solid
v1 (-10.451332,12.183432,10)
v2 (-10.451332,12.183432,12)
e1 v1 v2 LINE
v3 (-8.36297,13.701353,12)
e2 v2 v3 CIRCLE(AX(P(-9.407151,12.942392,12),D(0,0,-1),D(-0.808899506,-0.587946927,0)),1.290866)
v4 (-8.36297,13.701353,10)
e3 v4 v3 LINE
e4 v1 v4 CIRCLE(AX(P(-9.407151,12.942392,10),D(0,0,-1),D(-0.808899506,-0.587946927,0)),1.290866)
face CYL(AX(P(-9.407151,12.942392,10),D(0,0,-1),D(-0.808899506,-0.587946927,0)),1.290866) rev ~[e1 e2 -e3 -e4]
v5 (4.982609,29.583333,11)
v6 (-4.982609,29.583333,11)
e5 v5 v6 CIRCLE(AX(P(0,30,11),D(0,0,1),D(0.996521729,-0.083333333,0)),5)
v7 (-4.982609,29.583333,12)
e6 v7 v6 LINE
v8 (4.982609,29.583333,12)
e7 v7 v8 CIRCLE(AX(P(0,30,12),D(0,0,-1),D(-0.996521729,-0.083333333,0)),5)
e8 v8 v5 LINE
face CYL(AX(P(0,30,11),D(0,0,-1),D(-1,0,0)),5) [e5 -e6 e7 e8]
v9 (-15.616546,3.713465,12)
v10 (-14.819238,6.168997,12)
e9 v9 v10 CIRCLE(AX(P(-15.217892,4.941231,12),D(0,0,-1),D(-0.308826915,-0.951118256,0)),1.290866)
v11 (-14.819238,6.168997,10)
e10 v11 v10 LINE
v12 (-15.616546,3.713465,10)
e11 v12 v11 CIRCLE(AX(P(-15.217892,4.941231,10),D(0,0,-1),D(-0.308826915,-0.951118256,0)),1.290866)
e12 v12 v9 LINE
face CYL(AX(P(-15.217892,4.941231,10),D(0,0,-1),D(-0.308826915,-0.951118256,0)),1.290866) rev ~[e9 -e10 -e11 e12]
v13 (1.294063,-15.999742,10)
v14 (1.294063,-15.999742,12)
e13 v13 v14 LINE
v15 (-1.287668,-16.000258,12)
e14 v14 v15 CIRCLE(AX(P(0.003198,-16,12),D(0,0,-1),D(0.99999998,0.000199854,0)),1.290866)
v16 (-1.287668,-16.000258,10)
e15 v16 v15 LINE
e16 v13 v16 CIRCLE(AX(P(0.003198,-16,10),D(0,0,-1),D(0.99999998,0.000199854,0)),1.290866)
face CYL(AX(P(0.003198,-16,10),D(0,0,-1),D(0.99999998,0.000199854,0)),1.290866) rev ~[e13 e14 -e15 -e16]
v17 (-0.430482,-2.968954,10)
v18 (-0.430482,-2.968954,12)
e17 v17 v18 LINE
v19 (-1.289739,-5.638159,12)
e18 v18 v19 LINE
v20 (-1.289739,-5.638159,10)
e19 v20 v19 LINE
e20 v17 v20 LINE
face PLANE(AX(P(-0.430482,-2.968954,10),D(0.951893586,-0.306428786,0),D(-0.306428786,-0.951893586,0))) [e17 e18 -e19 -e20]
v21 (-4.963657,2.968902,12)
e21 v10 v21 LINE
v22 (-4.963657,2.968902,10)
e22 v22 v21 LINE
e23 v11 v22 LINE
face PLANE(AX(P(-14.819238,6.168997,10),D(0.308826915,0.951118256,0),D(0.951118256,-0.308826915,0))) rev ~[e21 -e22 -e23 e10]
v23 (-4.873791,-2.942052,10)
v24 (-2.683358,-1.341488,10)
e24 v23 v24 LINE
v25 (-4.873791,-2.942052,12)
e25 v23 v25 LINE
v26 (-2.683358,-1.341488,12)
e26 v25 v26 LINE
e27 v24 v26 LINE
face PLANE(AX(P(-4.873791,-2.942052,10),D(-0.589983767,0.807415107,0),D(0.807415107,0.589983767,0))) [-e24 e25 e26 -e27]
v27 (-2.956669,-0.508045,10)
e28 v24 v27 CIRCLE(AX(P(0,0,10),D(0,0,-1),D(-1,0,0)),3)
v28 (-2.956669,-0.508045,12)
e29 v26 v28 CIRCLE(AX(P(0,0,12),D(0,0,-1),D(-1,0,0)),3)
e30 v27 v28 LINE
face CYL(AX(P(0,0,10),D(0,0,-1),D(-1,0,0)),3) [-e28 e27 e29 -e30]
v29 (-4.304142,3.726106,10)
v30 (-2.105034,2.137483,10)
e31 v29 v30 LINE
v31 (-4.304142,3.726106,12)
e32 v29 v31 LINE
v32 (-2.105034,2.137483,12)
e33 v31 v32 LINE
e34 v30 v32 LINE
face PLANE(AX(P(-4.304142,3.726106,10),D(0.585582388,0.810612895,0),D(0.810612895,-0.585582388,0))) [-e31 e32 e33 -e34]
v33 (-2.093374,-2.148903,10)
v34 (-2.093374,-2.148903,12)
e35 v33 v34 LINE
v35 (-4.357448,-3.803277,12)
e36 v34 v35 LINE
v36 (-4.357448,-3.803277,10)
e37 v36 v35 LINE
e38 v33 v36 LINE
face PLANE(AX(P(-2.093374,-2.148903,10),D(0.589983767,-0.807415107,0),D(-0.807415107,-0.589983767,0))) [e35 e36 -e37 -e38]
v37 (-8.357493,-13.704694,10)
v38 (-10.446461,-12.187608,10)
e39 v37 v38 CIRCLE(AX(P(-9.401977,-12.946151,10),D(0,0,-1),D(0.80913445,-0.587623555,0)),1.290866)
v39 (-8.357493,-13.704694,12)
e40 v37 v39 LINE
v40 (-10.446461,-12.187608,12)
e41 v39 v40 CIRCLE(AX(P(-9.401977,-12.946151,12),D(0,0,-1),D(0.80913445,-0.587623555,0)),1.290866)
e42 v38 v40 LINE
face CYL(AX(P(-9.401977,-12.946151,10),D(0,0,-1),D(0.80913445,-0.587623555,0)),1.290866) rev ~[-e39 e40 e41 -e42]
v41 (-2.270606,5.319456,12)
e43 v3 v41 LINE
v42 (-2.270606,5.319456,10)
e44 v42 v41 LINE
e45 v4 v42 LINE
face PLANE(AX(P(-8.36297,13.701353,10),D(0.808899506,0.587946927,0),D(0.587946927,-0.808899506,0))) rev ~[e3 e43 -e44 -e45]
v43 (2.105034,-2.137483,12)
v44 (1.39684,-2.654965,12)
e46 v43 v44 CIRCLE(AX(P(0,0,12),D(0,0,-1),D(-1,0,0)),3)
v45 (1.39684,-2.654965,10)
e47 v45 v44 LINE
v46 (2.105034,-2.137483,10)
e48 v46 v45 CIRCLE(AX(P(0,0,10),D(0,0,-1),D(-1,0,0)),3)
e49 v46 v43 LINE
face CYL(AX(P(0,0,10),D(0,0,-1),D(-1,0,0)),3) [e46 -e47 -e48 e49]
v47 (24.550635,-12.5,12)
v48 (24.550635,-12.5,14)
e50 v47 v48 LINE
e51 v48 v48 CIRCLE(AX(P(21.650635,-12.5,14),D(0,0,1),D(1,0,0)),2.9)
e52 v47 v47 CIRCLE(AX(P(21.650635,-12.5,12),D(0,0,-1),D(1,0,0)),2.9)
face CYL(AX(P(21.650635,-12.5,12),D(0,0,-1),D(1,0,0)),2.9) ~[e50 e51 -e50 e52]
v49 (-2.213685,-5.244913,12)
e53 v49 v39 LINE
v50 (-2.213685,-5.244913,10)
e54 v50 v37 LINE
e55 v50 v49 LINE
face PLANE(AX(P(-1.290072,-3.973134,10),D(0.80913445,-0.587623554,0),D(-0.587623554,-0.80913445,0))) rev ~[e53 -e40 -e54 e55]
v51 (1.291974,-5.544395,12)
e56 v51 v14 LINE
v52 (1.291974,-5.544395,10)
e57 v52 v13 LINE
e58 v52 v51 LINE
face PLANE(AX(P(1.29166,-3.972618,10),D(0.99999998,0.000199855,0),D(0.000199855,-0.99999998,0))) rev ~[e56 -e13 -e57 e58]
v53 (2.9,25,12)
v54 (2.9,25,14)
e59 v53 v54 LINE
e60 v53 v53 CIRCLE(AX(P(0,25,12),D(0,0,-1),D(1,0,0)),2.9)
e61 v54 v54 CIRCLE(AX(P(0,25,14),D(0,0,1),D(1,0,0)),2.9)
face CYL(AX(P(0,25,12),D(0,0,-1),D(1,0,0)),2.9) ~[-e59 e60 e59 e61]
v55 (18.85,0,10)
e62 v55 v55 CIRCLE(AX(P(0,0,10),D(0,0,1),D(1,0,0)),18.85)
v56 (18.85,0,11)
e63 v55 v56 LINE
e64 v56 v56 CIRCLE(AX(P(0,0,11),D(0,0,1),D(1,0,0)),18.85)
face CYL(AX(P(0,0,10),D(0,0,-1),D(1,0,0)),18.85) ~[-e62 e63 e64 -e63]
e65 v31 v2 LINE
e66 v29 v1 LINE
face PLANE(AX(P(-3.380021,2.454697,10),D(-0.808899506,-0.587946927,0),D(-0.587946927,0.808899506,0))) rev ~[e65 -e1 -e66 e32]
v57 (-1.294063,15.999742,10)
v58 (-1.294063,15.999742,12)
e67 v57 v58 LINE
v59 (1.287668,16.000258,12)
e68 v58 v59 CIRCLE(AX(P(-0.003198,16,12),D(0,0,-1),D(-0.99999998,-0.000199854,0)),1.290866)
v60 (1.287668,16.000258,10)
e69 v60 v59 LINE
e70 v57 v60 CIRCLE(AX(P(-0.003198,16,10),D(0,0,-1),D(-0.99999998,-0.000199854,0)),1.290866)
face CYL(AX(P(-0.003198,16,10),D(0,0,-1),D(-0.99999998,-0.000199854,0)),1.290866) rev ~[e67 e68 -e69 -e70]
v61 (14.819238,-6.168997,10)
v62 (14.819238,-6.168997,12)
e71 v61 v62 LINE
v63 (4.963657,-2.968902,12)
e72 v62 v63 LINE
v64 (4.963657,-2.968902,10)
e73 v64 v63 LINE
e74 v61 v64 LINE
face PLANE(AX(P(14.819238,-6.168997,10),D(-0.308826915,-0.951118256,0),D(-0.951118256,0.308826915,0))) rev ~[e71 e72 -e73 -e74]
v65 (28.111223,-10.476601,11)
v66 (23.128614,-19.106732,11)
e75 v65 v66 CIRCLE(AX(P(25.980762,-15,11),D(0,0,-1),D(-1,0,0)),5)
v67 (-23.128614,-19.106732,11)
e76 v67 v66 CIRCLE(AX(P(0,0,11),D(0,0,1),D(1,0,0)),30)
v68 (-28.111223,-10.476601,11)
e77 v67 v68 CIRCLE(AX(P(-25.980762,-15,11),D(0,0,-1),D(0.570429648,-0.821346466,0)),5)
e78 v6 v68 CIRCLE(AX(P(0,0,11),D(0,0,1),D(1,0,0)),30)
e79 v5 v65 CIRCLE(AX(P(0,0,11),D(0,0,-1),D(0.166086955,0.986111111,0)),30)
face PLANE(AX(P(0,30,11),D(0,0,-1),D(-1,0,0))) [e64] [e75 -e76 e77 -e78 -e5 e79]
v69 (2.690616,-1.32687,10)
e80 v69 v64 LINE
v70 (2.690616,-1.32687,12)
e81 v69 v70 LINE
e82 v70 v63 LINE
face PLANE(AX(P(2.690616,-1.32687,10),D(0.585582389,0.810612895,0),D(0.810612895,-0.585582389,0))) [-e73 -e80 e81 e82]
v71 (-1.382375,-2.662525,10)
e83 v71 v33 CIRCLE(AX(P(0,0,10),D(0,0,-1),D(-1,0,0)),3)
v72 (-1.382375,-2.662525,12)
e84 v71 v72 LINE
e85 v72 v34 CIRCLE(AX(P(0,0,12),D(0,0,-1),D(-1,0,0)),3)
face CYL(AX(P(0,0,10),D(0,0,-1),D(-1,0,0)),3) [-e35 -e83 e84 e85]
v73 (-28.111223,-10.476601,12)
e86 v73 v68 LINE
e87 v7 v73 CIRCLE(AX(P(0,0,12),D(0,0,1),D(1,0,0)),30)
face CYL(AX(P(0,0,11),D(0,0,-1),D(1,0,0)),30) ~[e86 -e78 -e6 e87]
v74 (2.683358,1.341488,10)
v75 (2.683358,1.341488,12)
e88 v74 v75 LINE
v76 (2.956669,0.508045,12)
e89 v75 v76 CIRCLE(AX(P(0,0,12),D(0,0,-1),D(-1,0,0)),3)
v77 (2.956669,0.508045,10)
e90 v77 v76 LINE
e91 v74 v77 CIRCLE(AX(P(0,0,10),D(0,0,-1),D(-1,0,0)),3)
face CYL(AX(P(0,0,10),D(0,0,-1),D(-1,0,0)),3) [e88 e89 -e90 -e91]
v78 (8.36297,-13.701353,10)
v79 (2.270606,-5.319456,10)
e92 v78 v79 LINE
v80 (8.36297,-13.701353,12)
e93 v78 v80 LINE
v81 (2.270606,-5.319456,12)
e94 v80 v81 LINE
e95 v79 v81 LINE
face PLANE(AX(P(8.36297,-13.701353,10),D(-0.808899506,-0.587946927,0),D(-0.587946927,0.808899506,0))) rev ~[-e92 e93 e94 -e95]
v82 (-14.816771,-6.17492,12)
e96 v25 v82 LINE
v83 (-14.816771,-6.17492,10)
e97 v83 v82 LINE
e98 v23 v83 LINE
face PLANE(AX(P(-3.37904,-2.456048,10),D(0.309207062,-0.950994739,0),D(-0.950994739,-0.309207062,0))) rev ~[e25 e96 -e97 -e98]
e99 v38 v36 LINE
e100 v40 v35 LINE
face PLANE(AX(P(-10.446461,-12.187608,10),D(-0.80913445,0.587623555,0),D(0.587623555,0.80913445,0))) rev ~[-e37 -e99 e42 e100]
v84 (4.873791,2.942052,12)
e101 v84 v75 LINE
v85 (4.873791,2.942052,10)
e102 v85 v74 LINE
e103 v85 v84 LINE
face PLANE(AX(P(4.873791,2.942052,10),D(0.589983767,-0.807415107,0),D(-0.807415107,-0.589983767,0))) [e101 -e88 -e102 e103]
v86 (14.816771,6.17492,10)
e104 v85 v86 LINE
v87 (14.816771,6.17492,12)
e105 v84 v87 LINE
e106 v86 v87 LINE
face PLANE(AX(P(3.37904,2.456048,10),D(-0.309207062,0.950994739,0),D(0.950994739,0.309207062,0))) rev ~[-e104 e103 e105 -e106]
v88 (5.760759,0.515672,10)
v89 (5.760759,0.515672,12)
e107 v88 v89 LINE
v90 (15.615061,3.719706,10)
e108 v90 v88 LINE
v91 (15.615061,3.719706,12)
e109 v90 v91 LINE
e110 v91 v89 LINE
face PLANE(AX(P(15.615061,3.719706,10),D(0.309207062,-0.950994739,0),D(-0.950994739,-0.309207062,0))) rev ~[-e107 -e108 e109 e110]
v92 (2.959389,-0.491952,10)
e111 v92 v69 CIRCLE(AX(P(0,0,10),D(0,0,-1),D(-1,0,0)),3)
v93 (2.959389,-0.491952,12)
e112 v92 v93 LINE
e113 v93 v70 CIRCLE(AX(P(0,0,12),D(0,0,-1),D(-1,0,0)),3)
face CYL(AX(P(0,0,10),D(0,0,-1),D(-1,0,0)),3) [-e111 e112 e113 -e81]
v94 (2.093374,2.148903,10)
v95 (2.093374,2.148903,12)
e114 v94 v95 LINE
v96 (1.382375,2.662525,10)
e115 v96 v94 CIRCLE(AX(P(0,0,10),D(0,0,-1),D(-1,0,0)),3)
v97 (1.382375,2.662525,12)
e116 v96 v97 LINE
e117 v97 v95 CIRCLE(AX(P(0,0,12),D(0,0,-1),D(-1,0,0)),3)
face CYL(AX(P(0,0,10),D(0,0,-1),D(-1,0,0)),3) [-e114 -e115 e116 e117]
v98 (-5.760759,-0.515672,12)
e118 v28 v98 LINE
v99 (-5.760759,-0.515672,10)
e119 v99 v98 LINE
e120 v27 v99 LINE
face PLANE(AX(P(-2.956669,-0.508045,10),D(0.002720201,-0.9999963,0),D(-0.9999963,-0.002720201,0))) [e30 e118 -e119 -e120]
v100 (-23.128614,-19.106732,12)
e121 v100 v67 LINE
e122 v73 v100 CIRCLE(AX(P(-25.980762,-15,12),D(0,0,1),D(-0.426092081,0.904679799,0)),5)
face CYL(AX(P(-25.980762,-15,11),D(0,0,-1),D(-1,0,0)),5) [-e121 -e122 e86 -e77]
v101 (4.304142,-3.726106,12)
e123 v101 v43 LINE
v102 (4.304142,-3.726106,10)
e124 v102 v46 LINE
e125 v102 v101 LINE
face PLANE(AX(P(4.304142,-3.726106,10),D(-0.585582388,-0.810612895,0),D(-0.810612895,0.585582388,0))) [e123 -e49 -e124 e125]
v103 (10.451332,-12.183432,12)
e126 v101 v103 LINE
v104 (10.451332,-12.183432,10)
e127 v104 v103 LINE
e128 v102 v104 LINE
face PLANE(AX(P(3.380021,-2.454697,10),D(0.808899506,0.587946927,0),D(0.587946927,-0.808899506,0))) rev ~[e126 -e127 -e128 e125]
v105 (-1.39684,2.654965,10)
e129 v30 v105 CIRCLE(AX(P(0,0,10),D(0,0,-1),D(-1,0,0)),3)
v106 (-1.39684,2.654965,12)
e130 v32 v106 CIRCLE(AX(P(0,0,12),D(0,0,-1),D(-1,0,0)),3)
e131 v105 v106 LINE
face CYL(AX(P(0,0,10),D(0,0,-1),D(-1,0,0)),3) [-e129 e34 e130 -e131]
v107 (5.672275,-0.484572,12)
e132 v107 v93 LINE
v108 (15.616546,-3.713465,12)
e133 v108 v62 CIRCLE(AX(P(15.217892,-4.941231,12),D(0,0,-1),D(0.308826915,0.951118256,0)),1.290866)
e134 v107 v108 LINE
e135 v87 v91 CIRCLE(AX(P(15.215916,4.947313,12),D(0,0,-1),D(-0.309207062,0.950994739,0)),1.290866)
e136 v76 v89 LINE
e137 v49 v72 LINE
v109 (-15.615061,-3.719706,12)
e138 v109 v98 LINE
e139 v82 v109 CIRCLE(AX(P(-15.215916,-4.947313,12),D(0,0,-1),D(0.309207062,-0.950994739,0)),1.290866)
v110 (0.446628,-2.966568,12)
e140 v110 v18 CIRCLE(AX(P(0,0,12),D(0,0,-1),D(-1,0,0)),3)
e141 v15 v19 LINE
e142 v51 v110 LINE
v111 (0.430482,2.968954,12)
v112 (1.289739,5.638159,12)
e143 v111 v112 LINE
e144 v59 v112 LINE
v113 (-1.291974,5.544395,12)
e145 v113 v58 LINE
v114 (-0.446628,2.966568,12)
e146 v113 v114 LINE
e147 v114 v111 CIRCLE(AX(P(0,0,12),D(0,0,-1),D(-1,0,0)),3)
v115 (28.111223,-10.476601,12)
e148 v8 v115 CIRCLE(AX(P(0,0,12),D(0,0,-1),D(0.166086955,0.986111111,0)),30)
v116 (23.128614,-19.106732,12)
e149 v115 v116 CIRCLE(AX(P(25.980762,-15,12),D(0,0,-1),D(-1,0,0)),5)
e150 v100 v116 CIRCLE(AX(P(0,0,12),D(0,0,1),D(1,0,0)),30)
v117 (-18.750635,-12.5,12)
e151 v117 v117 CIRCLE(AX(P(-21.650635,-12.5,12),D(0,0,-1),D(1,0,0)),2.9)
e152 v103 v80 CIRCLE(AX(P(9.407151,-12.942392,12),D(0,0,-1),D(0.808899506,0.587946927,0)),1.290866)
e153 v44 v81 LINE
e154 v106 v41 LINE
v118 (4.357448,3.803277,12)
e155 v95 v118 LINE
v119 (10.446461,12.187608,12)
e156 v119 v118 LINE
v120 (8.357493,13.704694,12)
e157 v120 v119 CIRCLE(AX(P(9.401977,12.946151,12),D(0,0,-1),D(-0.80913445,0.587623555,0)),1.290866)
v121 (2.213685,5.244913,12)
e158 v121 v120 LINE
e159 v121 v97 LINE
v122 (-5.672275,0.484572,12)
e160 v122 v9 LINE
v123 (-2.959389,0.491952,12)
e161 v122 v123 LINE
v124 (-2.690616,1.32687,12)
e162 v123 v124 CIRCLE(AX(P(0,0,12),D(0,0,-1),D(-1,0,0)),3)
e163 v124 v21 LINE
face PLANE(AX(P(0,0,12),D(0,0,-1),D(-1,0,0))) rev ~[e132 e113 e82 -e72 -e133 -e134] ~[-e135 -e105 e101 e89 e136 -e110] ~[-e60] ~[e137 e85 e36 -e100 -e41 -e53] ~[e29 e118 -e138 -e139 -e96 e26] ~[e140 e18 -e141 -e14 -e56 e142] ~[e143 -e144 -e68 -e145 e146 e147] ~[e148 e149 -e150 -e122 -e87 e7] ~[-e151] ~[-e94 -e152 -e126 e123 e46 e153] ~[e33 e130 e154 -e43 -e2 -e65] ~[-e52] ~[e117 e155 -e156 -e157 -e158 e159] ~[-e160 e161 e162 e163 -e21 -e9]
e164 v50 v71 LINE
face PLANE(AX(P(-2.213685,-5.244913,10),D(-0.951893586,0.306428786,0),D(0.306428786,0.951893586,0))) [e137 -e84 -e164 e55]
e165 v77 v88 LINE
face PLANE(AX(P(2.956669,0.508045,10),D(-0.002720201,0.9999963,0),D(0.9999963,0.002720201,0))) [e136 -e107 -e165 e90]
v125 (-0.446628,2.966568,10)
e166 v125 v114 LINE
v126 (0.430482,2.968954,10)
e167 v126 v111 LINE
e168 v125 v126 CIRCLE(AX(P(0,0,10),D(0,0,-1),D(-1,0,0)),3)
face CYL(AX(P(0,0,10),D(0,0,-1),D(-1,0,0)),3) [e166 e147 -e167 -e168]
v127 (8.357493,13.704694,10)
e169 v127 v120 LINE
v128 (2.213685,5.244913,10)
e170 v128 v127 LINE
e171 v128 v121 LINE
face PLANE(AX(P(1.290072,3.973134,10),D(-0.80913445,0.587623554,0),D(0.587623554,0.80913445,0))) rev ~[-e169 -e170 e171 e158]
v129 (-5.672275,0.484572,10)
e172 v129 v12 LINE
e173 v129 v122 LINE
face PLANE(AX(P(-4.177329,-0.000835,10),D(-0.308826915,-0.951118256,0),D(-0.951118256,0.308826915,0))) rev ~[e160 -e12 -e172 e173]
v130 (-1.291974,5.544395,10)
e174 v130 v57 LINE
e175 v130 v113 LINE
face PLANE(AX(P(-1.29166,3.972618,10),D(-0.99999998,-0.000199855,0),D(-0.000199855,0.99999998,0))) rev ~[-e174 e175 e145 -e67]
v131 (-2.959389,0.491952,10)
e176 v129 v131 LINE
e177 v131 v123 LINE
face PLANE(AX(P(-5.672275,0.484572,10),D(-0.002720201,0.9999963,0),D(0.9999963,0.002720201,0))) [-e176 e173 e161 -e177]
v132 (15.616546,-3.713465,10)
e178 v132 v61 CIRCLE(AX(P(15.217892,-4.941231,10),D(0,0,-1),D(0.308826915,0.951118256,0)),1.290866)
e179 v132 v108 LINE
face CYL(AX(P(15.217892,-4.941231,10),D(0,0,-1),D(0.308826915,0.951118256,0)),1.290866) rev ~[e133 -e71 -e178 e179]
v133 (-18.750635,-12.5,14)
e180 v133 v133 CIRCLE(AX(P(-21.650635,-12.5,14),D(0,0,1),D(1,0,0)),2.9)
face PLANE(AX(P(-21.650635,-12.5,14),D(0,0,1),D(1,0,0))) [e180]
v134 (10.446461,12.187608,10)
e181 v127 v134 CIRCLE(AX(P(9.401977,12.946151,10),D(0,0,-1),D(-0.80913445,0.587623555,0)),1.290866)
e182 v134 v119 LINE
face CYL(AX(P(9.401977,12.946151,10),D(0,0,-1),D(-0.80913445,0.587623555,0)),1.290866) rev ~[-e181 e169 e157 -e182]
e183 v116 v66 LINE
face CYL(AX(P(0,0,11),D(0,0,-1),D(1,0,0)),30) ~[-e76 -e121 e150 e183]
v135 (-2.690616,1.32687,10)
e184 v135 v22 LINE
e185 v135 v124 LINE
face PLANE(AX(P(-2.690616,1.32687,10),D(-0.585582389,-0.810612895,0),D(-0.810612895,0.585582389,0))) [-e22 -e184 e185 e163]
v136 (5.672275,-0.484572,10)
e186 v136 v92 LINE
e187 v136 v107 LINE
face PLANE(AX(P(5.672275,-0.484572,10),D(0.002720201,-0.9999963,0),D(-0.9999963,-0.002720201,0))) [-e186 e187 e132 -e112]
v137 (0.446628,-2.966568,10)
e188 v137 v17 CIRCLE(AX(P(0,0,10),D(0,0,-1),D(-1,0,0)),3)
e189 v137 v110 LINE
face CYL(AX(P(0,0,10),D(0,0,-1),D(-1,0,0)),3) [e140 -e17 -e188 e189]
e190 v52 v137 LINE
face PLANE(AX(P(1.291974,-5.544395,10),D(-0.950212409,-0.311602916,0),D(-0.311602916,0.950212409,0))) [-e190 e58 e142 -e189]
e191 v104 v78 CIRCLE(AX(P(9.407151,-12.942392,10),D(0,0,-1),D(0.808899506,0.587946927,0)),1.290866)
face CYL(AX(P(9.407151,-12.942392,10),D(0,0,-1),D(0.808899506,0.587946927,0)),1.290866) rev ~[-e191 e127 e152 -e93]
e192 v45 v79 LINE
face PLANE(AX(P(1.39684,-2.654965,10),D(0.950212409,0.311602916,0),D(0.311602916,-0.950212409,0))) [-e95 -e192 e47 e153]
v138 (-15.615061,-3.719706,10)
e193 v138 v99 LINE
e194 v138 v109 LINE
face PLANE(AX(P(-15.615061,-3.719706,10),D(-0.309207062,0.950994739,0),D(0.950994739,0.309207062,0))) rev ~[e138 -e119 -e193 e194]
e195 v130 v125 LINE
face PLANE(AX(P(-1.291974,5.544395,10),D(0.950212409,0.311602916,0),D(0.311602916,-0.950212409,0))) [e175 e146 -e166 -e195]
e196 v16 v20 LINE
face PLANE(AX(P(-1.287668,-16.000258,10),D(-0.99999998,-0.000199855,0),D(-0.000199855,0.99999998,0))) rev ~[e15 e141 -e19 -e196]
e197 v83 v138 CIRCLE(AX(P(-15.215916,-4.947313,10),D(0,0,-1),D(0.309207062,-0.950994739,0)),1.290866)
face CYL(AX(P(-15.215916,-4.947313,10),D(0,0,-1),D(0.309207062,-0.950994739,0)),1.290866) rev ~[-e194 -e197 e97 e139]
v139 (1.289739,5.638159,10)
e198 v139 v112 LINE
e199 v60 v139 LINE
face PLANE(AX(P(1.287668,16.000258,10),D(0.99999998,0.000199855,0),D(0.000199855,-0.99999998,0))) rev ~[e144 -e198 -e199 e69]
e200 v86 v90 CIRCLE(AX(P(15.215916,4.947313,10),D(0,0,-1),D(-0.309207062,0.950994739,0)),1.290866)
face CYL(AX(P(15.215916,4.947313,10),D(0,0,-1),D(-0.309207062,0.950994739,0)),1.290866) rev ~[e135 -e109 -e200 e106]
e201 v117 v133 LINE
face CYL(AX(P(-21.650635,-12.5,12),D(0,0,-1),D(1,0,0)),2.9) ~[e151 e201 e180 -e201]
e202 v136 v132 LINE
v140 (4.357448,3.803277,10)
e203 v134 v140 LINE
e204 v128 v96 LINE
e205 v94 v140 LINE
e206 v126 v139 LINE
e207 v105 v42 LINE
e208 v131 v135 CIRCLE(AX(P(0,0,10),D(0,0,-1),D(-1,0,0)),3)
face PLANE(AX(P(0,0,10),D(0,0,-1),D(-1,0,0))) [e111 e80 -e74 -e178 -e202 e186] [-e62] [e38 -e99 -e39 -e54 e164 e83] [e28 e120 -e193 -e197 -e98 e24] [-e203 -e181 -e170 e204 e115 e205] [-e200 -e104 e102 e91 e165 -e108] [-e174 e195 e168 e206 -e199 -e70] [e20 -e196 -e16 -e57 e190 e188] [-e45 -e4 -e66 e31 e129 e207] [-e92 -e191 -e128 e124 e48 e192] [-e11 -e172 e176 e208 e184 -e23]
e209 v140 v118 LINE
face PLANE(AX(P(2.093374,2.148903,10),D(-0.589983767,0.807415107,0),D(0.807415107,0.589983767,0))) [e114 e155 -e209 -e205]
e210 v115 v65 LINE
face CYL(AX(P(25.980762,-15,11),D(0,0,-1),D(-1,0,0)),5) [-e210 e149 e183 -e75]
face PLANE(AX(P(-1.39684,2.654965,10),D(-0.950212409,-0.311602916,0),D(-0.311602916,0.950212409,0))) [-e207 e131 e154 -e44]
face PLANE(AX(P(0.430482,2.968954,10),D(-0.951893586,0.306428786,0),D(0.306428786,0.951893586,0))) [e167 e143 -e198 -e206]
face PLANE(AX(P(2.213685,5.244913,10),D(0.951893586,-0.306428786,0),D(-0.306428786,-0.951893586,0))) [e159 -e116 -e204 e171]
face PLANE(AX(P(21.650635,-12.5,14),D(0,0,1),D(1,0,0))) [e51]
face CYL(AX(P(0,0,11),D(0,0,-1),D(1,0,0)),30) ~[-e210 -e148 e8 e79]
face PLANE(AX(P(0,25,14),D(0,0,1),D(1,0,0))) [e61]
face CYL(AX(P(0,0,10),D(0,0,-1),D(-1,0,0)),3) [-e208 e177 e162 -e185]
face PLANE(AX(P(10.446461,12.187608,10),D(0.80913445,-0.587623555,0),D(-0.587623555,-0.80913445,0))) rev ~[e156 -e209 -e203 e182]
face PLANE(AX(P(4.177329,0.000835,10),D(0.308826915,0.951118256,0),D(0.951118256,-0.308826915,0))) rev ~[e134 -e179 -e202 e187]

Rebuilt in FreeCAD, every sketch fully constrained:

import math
import FreeCAD as App
import Part
import Sketcher

doc = App.newDocument("Part")
body = doc.addObject("PartDesign::Body", "Body")

# Sketch on XY plane
sketch1 = body.newObject("Sketcher::SketchObject", "Sketch")
sketch1.AttachmentSupport = (doc.getObject("XY_Plane"), [""])
sketch1.MapMode = "FlatFace"
sketch1.AttachmentOffset = App.Placement(App.Vector(0, 0, 10), App.Rotation())
sketch1.addGeometry([
    Part.Circle(App.Vector(0, 0, 0), App.Vector(0, 0, 1), 18.9),  # 0
    Part.LineSegment(App.Vector(-1.3, 4, 0), App.Vector(-1.3, 16, 0)),  # 1
    Part.ArcOfCircle(Part.Circle(App.Vector(0, 16, 0), App.Vector(0, 0, 1), 1.3), math.radians(0), math.radians(180)),  # 2
    Part.LineSegment(App.Vector(1.3, 16, 0), App.Vector(1.3, 4, 0)),  # 3
    Part.LineSegment(App.Vector(1.3, 4, 0), App.Vector(8.4, 13.7, 0)),  # 4
    Part.ArcOfCircle(Part.Circle(App.Vector(9.4, 12.9, 0), App.Vector(0, 0, 1), 1.3), math.radians(-36), math.radians(144)),  # 5
    Part.LineSegment(App.Vector(10.4, 12.2, 0), App.Vector(3.4, 2.5, 0)),  # 6
    Part.LineSegment(App.Vector(3.4, 2.5, 0), App.Vector(14.8, 6.2, 0)),  # 7
    Part.ArcOfCircle(Part.Circle(App.Vector(15.2, 4.9, 0), App.Vector(0, 0, 1), 1.3), math.radians(-72), math.radians(108)),  # 8
    Part.LineSegment(App.Vector(15.6, 3.7, 0), App.Vector(4.2, 0, 0)),  # 9
    Part.LineSegment(App.Vector(4.2, 0, 0), App.Vector(15.6, -3.7, 0)),  # 10
    Part.ArcOfCircle(Part.Circle(App.Vector(15.2, -4.9, 0), App.Vector(0, 0, 1), 1.3), math.radians(-108), math.radians(72)),  # 11
    Part.LineSegment(App.Vector(14.8, -6.2, 0), App.Vector(3.4, -2.5, 0)),  # 12
    Part.LineSegment(App.Vector(3.4, -2.5, 0), App.Vector(10.5, -12.2, 0)),  # 13
    Part.ArcOfCircle(Part.Circle(App.Vector(9.4, -12.9, 0), App.Vector(0, 0, 1), 1.3), math.radians(-144), math.radians(36)),  # 14
    Part.LineSegment(App.Vector(8.4, -13.7, 0), App.Vector(1.3, -4, 0)),  # 15
    Part.LineSegment(App.Vector(1.3, -4, 0), App.Vector(1.3, -16, 0)),  # 16
    Part.ArcOfCircle(Part.Circle(App.Vector(0, -16, 0), App.Vector(0, 0, 1), 1.3), math.radians(-180), math.radians(0)),  # 17
    Part.LineSegment(App.Vector(-1.3, -16, 0), App.Vector(-1.3, -4, 0)),  # 18
    Part.LineSegment(App.Vector(-1.3, -4, 0), App.Vector(-8.4, -13.7, 0)),  # 19
    Part.ArcOfCircle(Part.Circle(App.Vector(-9.4, -12.9, 0), App.Vector(0, 0, 1), 1.3), math.radians(144), math.radians(324)),  # 20
    Part.LineSegment(App.Vector(-10.4, -12.2, 0), App.Vector(-3.4, -2.5, 0)),  # 21
    Part.LineSegment(App.Vector(-3.4, -2.5, 0), App.Vector(-14.8, -6.2, 0)),  # 22
    Part.ArcOfCircle(Part.Circle(App.Vector(-15.2, -4.9, 0), App.Vector(0, 0, 1), 1.3), math.radians(108), math.radians(288)),  # 23
    Part.LineSegment(App.Vector(-15.6, -3.7, 0), App.Vector(-4.2, 0, 0)),  # 24
    Part.LineSegment(App.Vector(-4.2, 0, 0), App.Vector(-15.6, 3.7, 0)),  # 25
    Part.ArcOfCircle(Part.Circle(App.Vector(-15.2, 4.9, 0), App.Vector(0, 0, 1), 1.3), math.radians(72), math.radians(252)),  # 26
    Part.LineSegment(App.Vector(-14.8, 6.2, 0), App.Vector(-3.4, 2.5, 0)),  # 27
    Part.LineSegment(App.Vector(-3.4, 2.5, 0), App.Vector(-10.5, 12.2, 0)),  # 28
    Part.ArcOfCircle(Part.Circle(App.Vector(-9.4, 12.9, 0), App.Vector(0, 0, 1), 1.3), math.radians(36), math.radians(216)),  # 29
    Part.LineSegment(App.Vector(-8.4, 13.7, 0), App.Vector(-1.3, 4, 0)),  # 30
], False)
sketch1.addConstraint([
    Sketcher.Constraint("Tangent", 1, 2, 2, 2),
    Sketcher.Constraint("Tangent", 2, 1, 3, 1),
    Sketcher.Constraint("Coincident", 3, 2, 4, 1),
    Sketcher.Constraint("Tangent", 4, 2, 5, 2),
    Sketcher.Constraint("Tangent", 5, 1, 6, 1),
    Sketcher.Constraint("Coincident", 6, 2, 7, 1),
    Sketcher.Constraint("Tangent", 7, 2, 8, 2),
    Sketcher.Constraint("Tangent", 8, 1, 9, 1),
    Sketcher.Constraint("Coincident", 9, 2, 10, 1),
    Sketcher.Constraint("Tangent", 10, 2, 11, 2),
    Sketcher.Constraint("Tangent", 11, 1, 12, 1),
    Sketcher.Constraint("Coincident", 12, 2, 13, 1),
    Sketcher.Constraint("Tangent", 13, 2, 14, 2),
    Sketcher.Constraint("Tangent", 14, 1, 15, 1),
    Sketcher.Constraint("Coincident", 15, 2, 16, 1),
    Sketcher.Constraint("Tangent", 16, 2, 17, 2),
    Sketcher.Constraint("Tangent", 17, 1, 18, 1),
    Sketcher.Constraint("Coincident", 18, 2, 19, 1),
    Sketcher.Constraint("Tangent", 19, 2, 20, 2),
    Sketcher.Constraint("Tangent", 20, 1, 21, 1),
    Sketcher.Constraint("Coincident", 21, 2, 22, 1),
    Sketcher.Constraint("Tangent", 22, 2, 23, 2),
    Sketcher.Constraint("Tangent", 23, 1, 24, 1),
    Sketcher.Constraint("Coincident", 24, 2, 25, 1),
    Sketcher.Constraint("Tangent", 25, 2, 26, 2),
    Sketcher.Constraint("Tangent", 26, 1, 27, 1),
    Sketcher.Constraint("Coincident", 27, 2, 28, 1),
    Sketcher.Constraint("Tangent", 28, 2, 29, 2),
    Sketcher.Constraint("Tangent", 29, 1, 30, 1),
    Sketcher.Constraint("Coincident", 30, 2, 1, 1),
    Sketcher.Constraint("Coincident", 0, 3, -1, 1),
    Sketcher.Constraint("Equal", 2, 5),
    Sketcher.Constraint("Equal", 5, 8),
    Sketcher.Constraint("Equal", 8, 11),
    Sketcher.Constraint("Equal", 11, 14),
    Sketcher.Constraint("Equal", 14, 17),
    Sketcher.Constraint("Equal", 17, 20),
    Sketcher.Constraint("Equal", 20, 23),
    Sketcher.Constraint("Equal", 23, 26),
    Sketcher.Constraint("Equal", 26, 29),
    Sketcher.Constraint("Symmetric", 2, 3, 17, 3, -1, 1),
    Sketcher.Constraint("Symmetric", 5, 3, 20, 3, -1, 1),
    Sketcher.Constraint("Symmetric", 8, 3, 23, 3, -1, 1),
    Sketcher.Constraint("Symmetric", 11, 3, 26, 3, -1, 1),
    Sketcher.Constraint("Symmetric", 14, 3, 29, 3, -1, 1),
    Sketcher.Constraint("Symmetric", 3, 2, 18, 2, -1, 1),
    Sketcher.Constraint("Symmetric", 6, 2, 21, 2, -1, 1),
    Sketcher.Constraint("Symmetric", 9, 2, 24, 2, -1, 1),
    Sketcher.Constraint("Symmetric", 12, 2, 27, 2, -1, 1),
    Sketcher.Constraint("Symmetric", 15, 2, 30, 2, -1, 1),
    Sketcher.Constraint("Parallel", 1, 3),
    Sketcher.Constraint("Parallel", 4, 6),
    Sketcher.Constraint("Parallel", 7, 9),
    Sketcher.Constraint("Parallel", 10, 12),
    Sketcher.Constraint("Parallel", 13, 15),
    Sketcher.Constraint("Equal", 1, 3),
    Sketcher.Constraint("Equal", 3, 4),
    Sketcher.Constraint("Equal", 4, 6),
    Sketcher.Constraint("Equal", 6, 7),
    Sketcher.Constraint("Equal", 7, 9),
    Sketcher.Constraint("Equal", 9, 10),
    Sketcher.Constraint("Equal", 10, 12),
    Sketcher.Constraint("Equal", 12, 13),
    Sketcher.Constraint("Equal", 13, 15),
    Sketcher.Constraint("Diameter", 0, 37.7),
    Sketcher.Constraint("DistanceY", -1, 1, 2, 3, 16.0),
    Sketcher.Constraint("Radius", 2, 1.290866),
    Sketcher.Constraint("DistanceX", 5, 1, 8, 1, 5.1686),
    Sketcher.Constraint("DistanceY", 8, 1, 5, 1, 8.467902),
    Sketcher.Constraint("DistanceY", 11, 1, 12, 2, 3.7143),
    Sketcher.Constraint("DistanceY", 13, 2, 11, 3, 7.242201),
    Sketcher.Constraint("DistanceY", -1, 1, 5, 3, 12.946151),
])
pad1 = body.newObject("PartDesign::Pad", "Pad")
pad1.Profile = sketch1
pad1.Length = 2

# Sketch on XY plane
sketch2 = body.newObject("Sketcher::SketchObject", "Sketch001")
sketch2.AttachmentSupport = (doc.getObject("XY_Plane"), [""])
sketch2.MapMode = "FlatFace"
sketch2.AttachmentOffset = App.Placement(App.Vector(0, 0, 11), App.Rotation())
sketch2.addGeometry([
    Part.Circle(App.Vector(0, 0, 0), App.Vector(0, 0, 1), 30),
    Part.Circle(App.Vector(0, 0, 0), App.Vector(0, 0, 1), 19),
], False)
sketch2.addConstraint([
    Sketcher.Constraint("Coincident", 0, 3, -1, 1),
    Sketcher.Constraint("Coincident", 1, 3, -1, 1),
    Sketcher.Constraint("Diameter", 0, 60.0),
    Sketcher.Constraint("Diameter", 1, 37.7),
])
pad2 = body.newObject("PartDesign::Pad", "Pad001")
pad2.Profile = sketch2
pad2.Length = 1

# Sketch on XY plane
sketch3 = body.newObject("Sketcher::SketchObject", "Sketch002")
sketch3.AttachmentSupport = (doc.getObject("XY_Plane"), [""])
sketch3.MapMode = "FlatFace"
sketch3.AttachmentOffset = App.Placement(App.Vector(0, 0, 12), App.Rotation())
sketch3.addGeometry([
    Part.Circle(App.Vector(0, 25, 0), App.Vector(0, 0, 1), 2.9),
    Part.Circle(App.Vector(21.7, -12.5, 0), App.Vector(0, 0, 1), 2.9),
    Part.Circle(App.Vector(-21.7, -12.5, 0), App.Vector(0, 0, 1), 2.9),
], False)
sketch3.addConstraint([
    Sketcher.Constraint("Equal", 0, 1),
    Sketcher.Constraint("Equal", 1, 2),
    Sketcher.Constraint("Symmetric", 1, 3, 2, 3, -2),
    Sketcher.Constraint("PointOnObject", 0, 3, -2),
    Sketcher.Constraint("Diameter", 0, 5.8),
    Sketcher.Constraint("DistanceY", -1, 1, 0, 3, 25.0),
    Sketcher.Constraint("DistanceY", 1, 3, -1, 1, 12.5),
    Sketcher.Constraint("DistanceX", 2, 3, 1, 3, 43.30127),
])
pad3 = body.newObject("PartDesign::Pad", "Pad002")
pad3.Profile = sketch3
pad3.Length = 2

# Sketch on XY plane
sketch4 = body.newObject("Sketcher::SketchObject", "Sketch003")
sketch4.AttachmentSupport = (doc.getObject("XY_Plane"), [""])
sketch4.MapMode = "FlatFace"
sketch4.AttachmentOffset = App.Placement(App.Vector(0, 0, 11), App.Rotation())
sketch4.addGeometry([
    Part.Circle(App.Vector(0, 30, 0), App.Vector(0, 0, 1), 5),
    Part.Circle(App.Vector(-26, -15, 0), App.Vector(0, 0, 1), 5),
    Part.Circle(App.Vector(26, -15, 0), App.Vector(0, 0, 1), 5),
], False)
sketch4.addConstraint([
    Sketcher.Constraint("Equal", 0, 1),
    Sketcher.Constraint("Equal", 1, 2),
    Sketcher.Constraint("Symmetric", 1, 3, 2, 3, -2),
    Sketcher.Constraint("PointOnObject", 0, 3, -2),
    Sketcher.Constraint("Diameter", 0, 10.0),
    Sketcher.Constraint("DistanceY", -1, 1, 0, 3, 30.0),
    Sketcher.Constraint("DistanceY", 1, 3, -1, 1, 15.0),
    Sketcher.Constraint("DistanceX", 1, 3, -1, 1, 25.980762),
])
pad4 = body.newObject("PartDesign::Pad", "Pad003")
pad4.Profile = sketch4
pad4.Length = 1

# Sketch on XY plane
sketch5 = body.newObject("Sketcher::SketchObject", "Sketch004")
sketch5.AttachmentSupport = (doc.getObject("XY_Plane"), [""])
sketch5.MapMode = "FlatFace"
sketch5.AttachmentOffset = App.Placement(App.Vector(0, 0, 10), App.Rotation())
sketch5.addGeometry([
    Part.LineSegment(App.Vector(2.21, 5.24, 0), App.Vector(1.38, 2.66, 0)),  # 0
    Part.ArcOfCircle(Part.Circle(App.Vector(0, 0, 0), App.Vector(0, 0, 1), 3), math.radians(62.56), math.radians(81.75)),  # 1
    Part.LineSegment(App.Vector(0.43, 2.97, 0), App.Vector(1.29, 5.64, 0)),  # 2
    Part.LineSegment(App.Vector(1.29, 5.64, 0), App.Vector(1.29, 3.97, 0)),  # 3
    Part.LineSegment(App.Vector(1.29, 3.97, 0), App.Vector(2.21, 5.24, 0)),  # 4
    Part.LineSegment(App.Vector(-1.29, 5.54, 0), App.Vector(-0.45, 2.97, 0)),  # 5
    Part.ArcOfCircle(Part.Circle(App.Vector(0, 0, 0), App.Vector(0, 0, 1), 3), math.radians(98.56), math.radians(117.75)),  # 6
    Part.LineSegment(App.Vector(-1.4, 2.65, 0), App.Vector(-2.27, 5.32, 0)),  # 7
    Part.LineSegment(App.Vector(-2.27, 5.32, 0), App.Vector(-1.29, 3.97, 0)),  # 8
    Part.LineSegment(App.Vector(-1.29, 3.97, 0), App.Vector(-1.29, 5.54, 0)),  # 9
    Part.ArcOfCircle(Part.Circle(App.Vector(0, 0, 0), App.Vector(0, 0, 1), 3), math.radians(134.56), math.radians(153.75)),  # 10
    Part.LineSegment(App.Vector(-2.69, 1.33, 0), App.Vector(-4.96, 2.97, 0)),  # 11
    Part.LineSegment(App.Vector(-4.96, 2.97, 0), App.Vector(-3.38, 2.45, 0)),  # 12
    Part.LineSegment(App.Vector(-3.38, 2.45, 0), App.Vector(-4.3, 3.73, 0)),  # 13
    Part.LineSegment(App.Vector(-4.3, 3.73, 0), App.Vector(-2.11, 2.14, 0)),  # 14
    Part.ArcOfCircle(Part.Circle(App.Vector(0, 0, 0), App.Vector(0, 0, 1), 3), math.radians(180), math.radians(189.75)),  # 15
    Part.LineSegment(App.Vector(-2.96, -0.51, 0), App.Vector(-5.76, -0.52, 0)),  # 16
    Part.LineSegment(App.Vector(-5.76, -0.52, 0), App.Vector(-4.18, 0, 0)),  # 17
    Part.LineSegment(App.Vector(-4.18, 0, 0), App.Vector(-5.67, 0.48, 0)),  # 18
    Part.LineSegment(App.Vector(-5.67, 0.48, 0), App.Vector(-2.96, 0.49, 0)),  # 19
    Part.ArcOfCircle(Part.Circle(App.Vector(0, 0, 0), App.Vector(0, 0, 1), 3), math.radians(170.56), math.radians(180)),  # 20
    Part.ArcOfCircle(Part.Circle(App.Vector(0, 0, 0), App.Vector(0, 0, 1), 3), math.radians(-153.44), math.radians(-134.25)),  # 21
    Part.LineSegment(App.Vector(-2.09, -2.15, 0), App.Vector(-4.36, -3.8, 0)),  # 22
    Part.LineSegment(App.Vector(-4.36, -3.8, 0), App.Vector(-3.38, -2.46, 0)),  # 23
    Part.LineSegment(App.Vector(-3.38, -2.46, 0), App.Vector(-4.87, -2.94, 0)),  # 24
    Part.LineSegment(App.Vector(-4.87, -2.94, 0), App.Vector(-2.68, -1.34, 0)),  # 25
    Part.ArcOfCircle(Part.Circle(App.Vector(0, 0, 0), App.Vector(0, 0, 1), 3), math.radians(-117.44), math.radians(-98.25)),  # 26
    Part.LineSegment(App.Vector(-0.43, -2.97, 0), App.Vector(-1.29, -5.64, 0)),  # 27
    Part.LineSegment(App.Vector(-1.29, -5.64, 0), App.Vector(-1.29, -3.97, 0)),  # 28
    Part.LineSegment(App.Vector(-1.29, -3.97, 0), App.Vector(-2.21, -5.24, 0)),  # 29
    Part.LineSegment(App.Vector(-2.21, -5.24, 0), App.Vector(-1.38, -2.66, 0)),  # 30
    Part.LineSegment(App.Vector(1.4, -2.65, 0), App.Vector(2.27, -5.32, 0)),  # 31
    Part.LineSegment(App.Vector(2.27, -5.32, 0), App.Vector(1.29, -3.97, 0)),  # 32
    Part.LineSegment(App.Vector(1.29, -3.97, 0), App.Vector(1.29, -5.54, 0)),  # 33
    Part.LineSegment(App.Vector(1.29, -5.54, 0), App.Vector(0.45, -2.97, 0)),  # 34
    Part.ArcOfCircle(Part.Circle(App.Vector(0, 0, 0), App.Vector(0, 0, 1), 3), math.radians(-81.44), math.radians(-62.25)),  # 35
    Part.LineSegment(App.Vector(4.3, -3.73, 0), App.Vector(2.11, -2.14, 0)),  # 36
    Part.ArcOfCircle(Part.Circle(App.Vector(0, 0, 0), App.Vector(0, 0, 1), 3), math.radians(-45.44), math.radians(-26.25)),  # 37
    Part.LineSegment(App.Vector(2.69, -1.33, 0), App.Vector(4.96, -2.97, 0)),  # 38
    Part.LineSegment(App.Vector(4.96, -2.97, 0), App.Vector(3.38, -2.45, 0)),  # 39
    Part.LineSegment(App.Vector(3.38, -2.45, 0), App.Vector(4.3, -3.73, 0)),  # 40
    Part.LineSegment(App.Vector(5.67, -0.48, 0), App.Vector(2.96, -0.49, 0)),  # 41
    Part.ArcOfCircle(Part.Circle(App.Vector(0, 0, 0), App.Vector(0, 0, 1), 3), math.radians(-9.44), math.radians(9.75)),  # 42
    Part.LineSegment(App.Vector(2.96, 0.51, 0), App.Vector(5.76, 0.52, 0)),  # 43
    Part.LineSegment(App.Vector(5.76, 0.52, 0), App.Vector(4.18, 0, 0)),  # 44
    Part.LineSegment(App.Vector(4.18, 0, 0), App.Vector(5.67, -0.48, 0)),  # 45
    Part.LineSegment(App.Vector(4.87, 2.94, 0), App.Vector(2.68, 1.34, 0)),  # 46
    Part.ArcOfCircle(Part.Circle(App.Vector(0, 0, 0), App.Vector(0, 0, 1), 3), math.radians(26.56), math.radians(45.75)),  # 47
    Part.LineSegment(App.Vector(2.09, 2.15, 0), App.Vector(4.36, 3.8, 0)),  # 48
    Part.LineSegment(App.Vector(4.36, 3.8, 0), App.Vector(3.38, 2.46, 0)),  # 49
    Part.LineSegment(App.Vector(3.38, 2.46, 0), App.Vector(4.87, 2.94, 0)),  # 50
], False)
sketch5.addConstraint([
    Sketcher.Constraint("Coincident", 0, 2, 1, 1),
    Sketcher.Constraint("Coincident", 1, 2, 2, 1),
    Sketcher.Constraint("Coincident", 2, 2, 3, 1),
    Sketcher.Constraint("Coincident", 3, 2, 4, 1),
    Sketcher.Constraint("Coincident", 4, 2, 0, 1),
    Sketcher.Constraint("Coincident", 5, 2, 6, 1),
    Sketcher.Constraint("Coincident", 6, 2, 7, 1),
    Sketcher.Constraint("Coincident", 7, 2, 8, 1),
    Sketcher.Constraint("Coincident", 8, 2, 9, 1),
    Sketcher.Constraint("Coincident", 9, 2, 5, 1),
    Sketcher.Constraint("Coincident", 10, 2, 11, 1),
    Sketcher.Constraint("Coincident", 11, 2, 12, 1),
    Sketcher.Constraint("Coincident", 12, 2, 13, 1),
    Sketcher.Constraint("Coincident", 13, 2, 14, 1),
    Sketcher.Constraint("Coincident", 14, 2, 10, 1),
    Sketcher.Constraint("Coincident", 15, 2, 16, 1),
    Sketcher.Constraint("Coincident", 16, 2, 17, 1),
    Sketcher.Constraint("Coincident", 17, 2, 18, 1),
    Sketcher.Constraint("Coincident", 18, 2, 19, 1),
    Sketcher.Constraint("Coincident", 19, 2, 20, 1),
    Sketcher.Constraint("Tangent", 20, 2, 15, 1),
    Sketcher.Constraint("Coincident", 21, 2, 22, 1),
    Sketcher.Constraint("Coincident", 22, 2, 23, 1),
    Sketcher.Constraint("Coincident", 23, 2, 24, 1),
    Sketcher.Constraint("Coincident", 24, 2, 25, 1),
    Sketcher.Constraint("Coincident", 25, 2, 21, 1),
    Sketcher.Constraint("Coincident", 26, 2, 27, 1),
    Sketcher.Constraint("Coincident", 27, 2, 28, 1),
    Sketcher.Constraint("Coincident", 28, 2, 29, 1),
    Sketcher.Constraint("Coincident", 29, 2, 30, 1),
    Sketcher.Constraint("Coincident", 30, 2, 26, 1),
    Sketcher.Constraint("Coincident", 31, 2, 32, 1),
    Sketcher.Constraint("Coincident", 32, 2, 33, 1),
    Sketcher.Constraint("Coincident", 33, 2, 34, 1),
    Sketcher.Constraint("Coincident", 34, 2, 35, 1),
    Sketcher.Constraint("Coincident", 35, 2, 31, 1),
    Sketcher.Constraint("Coincident", 36, 2, 37, 1),
    Sketcher.Constraint("Coincident", 37, 2, 38, 1),
    Sketcher.Constraint("Coincident", 38, 2, 39, 1),
    Sketcher.Constraint("Coincident", 39, 2, 40, 1),
    Sketcher.Constraint("Coincident", 40, 2, 36, 1),
    Sketcher.Constraint("Coincident", 41, 2, 42, 1),
    Sketcher.Constraint("Coincident", 42, 2, 43, 1),
    Sketcher.Constraint("Coincident", 43, 2, 44, 1),
    Sketcher.Constraint("Coincident", 44, 2, 45, 1),
    Sketcher.Constraint("Coincident", 45, 2, 41, 1),
    Sketcher.Constraint("Coincident", 46, 2, 47, 1),
    Sketcher.Constraint("Coincident", 47, 2, 48, 1),
    Sketcher.Constraint("Coincident", 48, 2, 49, 1),
    Sketcher.Constraint("Coincident", 49, 2, 50, 1),
    Sketcher.Constraint("Coincident", 50, 2, 46, 1),
    Sketcher.Constraint("Coincident", 1, 3, -1, 1),
    Sketcher.Constraint("Coincident", 6, 3, -1, 1),
    Sketcher.Constraint("Coincident", 10, 3, -1, 1),
    Sketcher.Constraint("Coincident", 15, 3, -1, 1),
    Sketcher.Constraint("Coincident", 21, 3, -1, 1),
    Sketcher.Constraint("Coincident", 26, 3, -1, 1),
    Sketcher.Constraint("Coincident", 35, 3, -1, 1),
    Sketcher.Constraint("Coincident", 37, 3, -1, 1),
    Sketcher.Constraint("Coincident", 42, 3, -1, 1),
    Sketcher.Constraint("Coincident", 47, 3, -1, 1),
    Sketcher.Constraint("Equal", 1, 6),
    Sketcher.Constraint("Equal", 6, 10),
    Sketcher.Constraint("Equal", 10, 15),
    Sketcher.Constraint("Equal", 15, 20),
    Sketcher.Constraint("Equal", 20, 21),
    Sketcher.Constraint("Equal", 21, 26),
    Sketcher.Constraint("Equal", 26, 35),
    Sketcher.Constraint("Equal", 35, 37),
    Sketcher.Constraint("Equal", 37, 42),
    Sketcher.Constraint("Equal", 42, 47),
    Sketcher.Constraint("Symmetric", 2, 2, 27, 2, -1, 1),
    Sketcher.Constraint("Symmetric", 3, 2, 28, 2, -1, 1),
    Sketcher.Constraint("Symmetric", 4, 2, 29, 2, -1, 1),
    Sketcher.Constraint("Symmetric", 7, 2, 31, 2, -1, 1),
    Sketcher.Constraint("Symmetric", 8, 2, 32, 2, -1, 1),
    Sketcher.Constraint("Symmetric", 9, 2, 33, 2, -1, 1),
    Sketcher.Constraint("Symmetric", 11, 2, 38, 2, -1, 1),
    Sketcher.Constraint("Symmetric", 12, 2, 39, 2, -1, 1),
    Sketcher.Constraint("Symmetric", 13, 2, 40, 2, -1, 1),
    Sketcher.Constraint("Symmetric", 16, 2, 43, 2, -1, 1),
    Sketcher.Constraint("Symmetric", 17, 2, 44, 2, -1, 1),
    Sketcher.Constraint("Symmetric", 18, 2, 45, 2, -1, 1),
    Sketcher.Constraint("Symmetric", 22, 2, 48, 2, -1, 1),
    Sketcher.Constraint("Symmetric", 23, 2, 49, 2, -1, 1),
    Sketcher.Constraint("Symmetric", 24, 2, 50, 2, -1, 1),
    Sketcher.Constraint("PointOnObject", 20, 2, -1),
    Sketcher.Constraint("Parallel", 0, 2),
    Sketcher.Constraint("Parallel", 5, 7),
    Sketcher.Constraint("Parallel", 3, 9),
    Sketcher.Constraint("Parallel", 8, 13),
    Sketcher.Constraint("Parallel", 11, 14),
    Sketcher.Constraint("Parallel", 12, 18),
    Sketcher.Constraint("Parallel", 16, 19),
    Sketcher.Constraint("Parallel", 4, 23),
    Sketcher.Constraint("Parallel", 17, 24),
    Sketcher.Constraint("Parallel", 22, 25),
    Sketcher.Constraint("Parallel", 2, 27),
    Sketcher.Constraint("Parallel", 27, 30),
    Sketcher.Constraint("Parallel", 7, 31),
    Sketcher.Constraint("Parallel", 31, 34),
    Sketcher.Constraint("Parallel", 14, 36),
    Sketcher.Constraint("Parallel", 36, 38),
    Sketcher.Constraint("Parallel", 19, 41),
    Sketcher.Constraint("Parallel", 41, 43),
    Sketcher.Constraint("Parallel", 25, 46),
    Sketcher.Constraint("Parallel", 46, 48),
    Sketcher.Constraint("Equal", 0, 5),
    Sketcher.Constraint("Equal", 2, 7),
    Sketcher.Constraint("Equal", 3, 8),
    Sketcher.Constraint("Equal", 4, 9),
    Sketcher.Constraint("Equal", 7, 11),
    Sketcher.Constraint("Equal", 8, 12),
    Sketcher.Constraint("Equal", 9, 13),
    Sketcher.Constraint("Equal", 5, 14),
    Sketcher.Constraint("Equal", 11, 16),
    Sketcher.Constraint("Equal", 12, 17),
    Sketcher.Constraint("Equal", 13, 18),
    Sketcher.Constraint("Equal", 14, 19),
    Sketcher.Constraint("Equal", 16, 22),
    Sketcher.Constraint("Equal", 17, 23),
    Sketcher.Constraint("Equal", 18, 24),
    Sketcher.Constraint("Equal", 19, 25),
    Sketcher.Constraint("Radius", 1, 3.0),
    Sketcher.Constraint("Distance", 2, 2.804101),
    Sketcher.Constraint("DistanceY", -1, 1, 11, 2, 2.968902),
    Sketcher.Constraint("DistanceX", -1, 1, 1, 2, 0.430482),
    Sketcher.Constraint("DistanceX", -1, 1, 2, 2, 1.289739),
    Sketcher.Constraint("DistanceX", -1, 1, 3, 2, 1.290072),
    Sketcher.Constraint("DistanceX", 6, 2, -1, 1, 1.39684),
    Sketcher.Constraint("DistanceX", 8, 2, -1, 1, 1.29166),
    Sketcher.Constraint("DistanceY", -1, 1, 8, 2, 3.972618),
    Sketcher.Constraint("DistanceY", -1, 1, 10, 2, 1.32687),
    Sketcher.Constraint("DistanceX", 12, 2, -1, 1, 3.380021),
    Sketcher.Constraint("DistanceX", 15, 2, -1, 1, 2.956669),
    Sketcher.Constraint("DistanceX", 19, 2, -1, 1, 2.959389),
    Sketcher.Constraint("DistanceX", 23, 2, -1, 1, 3.37904),
    Sketcher.Constraint("DistanceX", 24, 2, -1, 1, 4.873791),
])
pad5 = body.newObject("PartDesign::Pad", "Pad004")
pad5.Profile = sketch5
pad5.Length = 2

# Sketch on XY plane
sketch6 = body.newObject("Sketcher::SketchObject", "Sketch005")
sketch6.AttachmentSupport = (doc.getObject("XY_Plane"), [""])
sketch6.MapMode = "FlatFace"
sketch6.AttachmentOffset = App.Placement(App.Vector(0, 0, 10), App.Rotation())
sketch6.addGeometry(Part.Circle(App.Vector(0, 0, 0), App.Vector(0, 0, 1), 3), False)
sketch6.addConstraint([
    Sketcher.Constraint("Coincident", 0, 3, -1, 1),
    Sketcher.Constraint("Diameter", 0, 6.0),
])
pad6 = body.newObject("PartDesign::Pad", "Pad005")
pad6.Profile = sketch6
pad6.Length = 2

doc.recompute()
